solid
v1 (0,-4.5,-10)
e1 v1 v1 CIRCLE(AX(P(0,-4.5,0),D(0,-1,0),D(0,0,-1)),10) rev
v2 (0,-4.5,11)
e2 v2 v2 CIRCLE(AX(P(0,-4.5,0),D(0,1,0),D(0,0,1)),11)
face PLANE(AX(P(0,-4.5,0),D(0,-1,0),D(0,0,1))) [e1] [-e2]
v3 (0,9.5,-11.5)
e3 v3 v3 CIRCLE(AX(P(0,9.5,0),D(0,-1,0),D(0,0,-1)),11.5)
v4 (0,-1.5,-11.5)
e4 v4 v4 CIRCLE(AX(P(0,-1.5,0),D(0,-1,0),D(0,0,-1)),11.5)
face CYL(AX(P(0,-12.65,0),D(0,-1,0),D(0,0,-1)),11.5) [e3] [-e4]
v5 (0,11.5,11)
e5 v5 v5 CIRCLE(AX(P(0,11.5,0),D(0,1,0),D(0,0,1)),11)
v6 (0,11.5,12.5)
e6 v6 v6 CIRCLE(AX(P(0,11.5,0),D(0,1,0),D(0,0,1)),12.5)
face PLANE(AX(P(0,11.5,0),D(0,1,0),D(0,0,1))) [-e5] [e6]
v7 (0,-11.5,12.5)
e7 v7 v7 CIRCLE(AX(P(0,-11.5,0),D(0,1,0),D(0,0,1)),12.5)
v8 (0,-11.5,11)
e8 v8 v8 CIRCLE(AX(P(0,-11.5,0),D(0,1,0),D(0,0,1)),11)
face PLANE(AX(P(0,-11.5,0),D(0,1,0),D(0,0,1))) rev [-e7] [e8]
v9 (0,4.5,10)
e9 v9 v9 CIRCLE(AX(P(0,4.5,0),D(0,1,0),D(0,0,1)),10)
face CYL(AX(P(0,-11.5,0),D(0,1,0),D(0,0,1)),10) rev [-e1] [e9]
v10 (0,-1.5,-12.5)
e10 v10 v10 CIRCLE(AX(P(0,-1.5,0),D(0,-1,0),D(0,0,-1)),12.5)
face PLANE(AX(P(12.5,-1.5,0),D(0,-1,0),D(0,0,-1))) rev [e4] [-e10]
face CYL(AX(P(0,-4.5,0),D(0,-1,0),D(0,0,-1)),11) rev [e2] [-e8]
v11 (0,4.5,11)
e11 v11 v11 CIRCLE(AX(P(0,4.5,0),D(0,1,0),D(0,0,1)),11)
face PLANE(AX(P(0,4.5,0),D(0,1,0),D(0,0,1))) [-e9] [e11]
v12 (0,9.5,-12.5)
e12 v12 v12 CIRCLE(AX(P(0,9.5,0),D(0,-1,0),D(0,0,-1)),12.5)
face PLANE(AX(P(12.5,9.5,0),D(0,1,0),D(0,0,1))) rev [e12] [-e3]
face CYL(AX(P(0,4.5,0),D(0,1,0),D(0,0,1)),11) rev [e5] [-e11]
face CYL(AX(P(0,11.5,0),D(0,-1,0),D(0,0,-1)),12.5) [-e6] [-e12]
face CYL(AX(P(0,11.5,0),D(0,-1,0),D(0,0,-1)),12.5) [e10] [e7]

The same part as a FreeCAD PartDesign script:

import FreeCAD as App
import Part
import Sketcher
from FreeCAD import Vector


def add_polygon(sketch, points):
    """Adds a closed chain of lines whose ends are joined by coincident constraints."""
    first, n = sketch.GeometryCount, len(points)
    for a, b in zip(points, points[1:] + points[:1]):
        sketch.addGeometry(Part.LineSegment(App.Vector(*a, 0), App.Vector(*b, 0)), False)
    for i in range(n):
        sketch.addConstraint(Sketcher.Constraint("Coincident", first + i, 2, first + (i + 1) % n, 1))

doc = App.newDocument("Part")
body = doc.addObject("PartDesign::Body", "Body")

sketch1 = body.newObject("Sketcher::SketchObject", "Sketch")
sketch1.AttachmentSupport = (doc.getObject("XZ_Plane"), [""])
sketch1.MapMode = "FlatFace"
sketch1.addGeometry(Part.Circle(Vector(0, 0, 0), Vector(0, 0, 1), 12.5), False)
sketch1.addConstraint(Sketcher.Constraint("Coincident", 0, 3, -1, 1))
sketch1.addConstraint(Sketcher.Constraint("Diameter", 0, 25.0))
pad1 = body.newObject("PartDesign::Pad", "Pad")
pad1.Profile = sketch1
pad1.Length = 23
pad1.Midplane = True

sketch2 = body.newObject("Sketcher::SketchObject", "Sketch001")
sketch2.AttachmentSupport = (doc.getObject("XZ_Plane"), [""])
sketch2.MapMode = "FlatFace"
sketch2.AttachmentOffset = App.Placement(Vector(0, 0, -11.5), App.Rotation())
sketch2.addGeometry(Part.Circle(Vector(0, 0, 0), Vector(0, 0, 1), 11), False)
sketch2.addConstraint(Sketcher.Constraint("Coincident", 0, 3, -1, 1))
sketch2.addConstraint(Sketcher.Constraint("Diameter", 0, 22.0))
pocket1 = body.newObject("PartDesign::Pocket", "Pocket")
pocket1.Profile = sketch2
pocket1.Length = 7
pocket1.Reversed = True

sketch3 = body.newObject("Sketcher::SketchObject", "Sketch002")
sketch3.AttachmentSupport = (doc.getObject("XZ_Plane"), [""])
sketch3.MapMode = "FlatFace"
sketch3.addGeometry(Part.Circle(Vector(0, 0, 0), Vector(0, 0, 1), 10), False)
sketch3.addConstraint(Sketcher.Constraint("Coincident", 0, 3, -1, 1))
sketch3.addConstraint(Sketcher.Constraint("Diameter", 0, 20.0))
pocket2 = body.newObject("PartDesign::Pocket", "Pocket001")
pocket2.Profile = sketch3
pocket2.Type = "ThroughAll"
pocket2.Midplane = True
doc.recompute()

mirrored = body.newObject("PartDesign::Mirrored", "Mirrored")
mirrored.Originals = [pocket1]
mirrored.MirrorPlane = (doc.getObject("XZ_Plane"), [""])
body.Tip = mirrored

sketch4 = body.newObject("Sketcher::SketchObject", "Sketch003")
sketch4.AttachmentSupport = (doc.getObject("XY_Plane"), [""])
sketch4.MapMode = "FlatFace"
add_polygon(sketch4, [(11.5, 9.5), (11.5, -1.5), (12.5, -1.5), (12.5, 9.5)])
sketch4.addConstraint(Sketcher.Constraint("Vertical", 0))
sketch4.addConstraint(Sketcher.Constraint("Horizontal", 1))
sketch4.addConstraint(Sketcher.Constraint("Vertical", 2))
sketch4.addConstraint(Sketcher.Constraint("Horizontal", 3))
sketch4.addConstraint(Sketcher.Constraint("DistanceX", 1, 1, 1, 2, 1.0))
sketch4.addConstraint(Sketcher.Constraint("DistanceY", 0, 2, 0, 1, 11.0))
sketch4.addConstraint(Sketcher.Constraint("DistanceX", -1, 1, 0, 2, 11.5))
sketch4.addConstraint(Sketcher.Constraint("DistanceY", 0, 2, -1, 1, 1.5))
groove = body.newObject("PartDesign::Groove", "Groove")
groove.Profile = sketch4
groove.ReferenceAxis = (sketch4, ["V_Axis"])
groove.Angle = 360

doc.recompute()
